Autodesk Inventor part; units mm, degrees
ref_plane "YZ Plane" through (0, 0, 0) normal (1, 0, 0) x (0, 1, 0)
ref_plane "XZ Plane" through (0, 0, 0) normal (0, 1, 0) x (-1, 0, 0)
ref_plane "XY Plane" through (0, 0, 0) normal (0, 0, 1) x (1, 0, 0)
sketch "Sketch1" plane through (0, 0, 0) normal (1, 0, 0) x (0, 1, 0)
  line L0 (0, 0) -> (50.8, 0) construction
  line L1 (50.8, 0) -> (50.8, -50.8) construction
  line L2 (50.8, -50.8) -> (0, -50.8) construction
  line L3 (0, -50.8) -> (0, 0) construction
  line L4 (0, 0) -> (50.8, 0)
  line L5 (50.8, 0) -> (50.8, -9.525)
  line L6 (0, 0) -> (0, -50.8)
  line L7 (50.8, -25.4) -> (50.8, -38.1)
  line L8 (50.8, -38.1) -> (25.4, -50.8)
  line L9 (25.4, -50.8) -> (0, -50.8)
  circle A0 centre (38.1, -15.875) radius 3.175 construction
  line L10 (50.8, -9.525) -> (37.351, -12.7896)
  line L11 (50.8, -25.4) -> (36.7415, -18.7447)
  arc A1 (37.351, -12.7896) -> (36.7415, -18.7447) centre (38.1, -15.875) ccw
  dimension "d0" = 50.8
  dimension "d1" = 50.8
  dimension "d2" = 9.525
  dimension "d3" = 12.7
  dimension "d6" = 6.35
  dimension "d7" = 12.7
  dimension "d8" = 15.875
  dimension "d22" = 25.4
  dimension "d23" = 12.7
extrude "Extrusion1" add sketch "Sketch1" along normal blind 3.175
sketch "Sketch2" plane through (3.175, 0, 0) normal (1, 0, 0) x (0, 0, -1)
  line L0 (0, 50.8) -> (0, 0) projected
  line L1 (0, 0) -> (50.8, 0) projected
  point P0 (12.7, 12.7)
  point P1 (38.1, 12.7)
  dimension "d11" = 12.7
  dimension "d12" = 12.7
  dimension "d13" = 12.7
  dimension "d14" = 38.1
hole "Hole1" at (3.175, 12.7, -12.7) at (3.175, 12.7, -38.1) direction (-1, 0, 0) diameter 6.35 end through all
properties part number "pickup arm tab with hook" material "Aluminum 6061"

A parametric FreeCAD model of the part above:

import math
import FreeCAD as App
import Part
import Sketcher

V = App.Vector
Q = App.Units.Quantity

doc = App.newDocument("Part")
params = doc.addObject("Spreadsheet::Sheet", "Params")
for row, (alias, value) in enumerate([
    ("sketch1_width", "2 in"),
    ("sketch1_width2", "1 in"),
    ("sketch1_height", "0.5 in"),
    ("sketch1_radius", "0.125 in"),
    ("sketch1_height2", "0.375 in"),
    ("pad1_length", "0.125 in"),
    ("sketch2_diameter", "0.25 in"),
    ("hole_diameter", "0.25 in"),
], start=1):
    params.set(f"A{row}", alias)
    params.set(f"B{row}", "=" + value)
    params.setAlias(f"B{row}", alias)

body = doc.addObject("PartDesign::Body", "Body")

# Sketch on YZ plane
sketch1 = body.newObject("Sketcher::SketchObject", "Sketch")
sketch1.AttachmentSupport = (doc.getObject("YZ_Plane"), [""])
sketch1.MapMode = "FlatFace"
sketch1.addGeometry([
    Part.LineSegment(V(50.8, 0, 0), V(0, 0, 0)),  # 0
    Part.LineSegment(V(0, 0, 0), V(0, -50.8, 0)),  # 1
    Part.LineSegment(V(0, -50.8, 0), V(25.4, -50.8, 0)),  # 2
    Part.LineSegment(V(25.4, -50.8, 0), V(50.8, -38.1, 0)),  # 3
    Part.LineSegment(V(50.8, -38.1, 0), V(50.8, -25.4, 0)),  # 4
    Part.LineSegment(V(50.8, -25.4, 0), V(36.7, -18.7, 0)),  # 5
    Part.ArcOfCircle(Part.Circle(V(38.1, -15.9, 0), V(0, 0, 1), 3.2), math.radians(104), math.radians(245)),  # 6
    Part.LineSegment(V(37.4, -12.8, 0), V(50.8, -9.5, 0)),  # 7
    Part.LineSegment(V(50.8, -9.5, 0), V(50.8, 0, 0)),  # 8
], False)
sketch1.addConstraint([
    Sketcher.Constraint("Coincident", 0, 2, 1, 1),
    Sketcher.Constraint("Coincident", 1, 2, 2, 1),
    Sketcher.Constraint("Coincident", 2, 2, 3, 1),
    Sketcher.Constraint("Coincident", 3, 2, 4, 1),
    Sketcher.Constraint("Coincident", 4, 2, 5, 1),
    Sketcher.Constraint("Tangent", 5, 2, 6, 2),
    Sketcher.Constraint("Tangent", 6, 1, 7, 1),
    Sketcher.Constraint("Coincident", 7, 2, 8, 1),
    Sketcher.Constraint("Coincident", 8, 2, 0, 1),
    Sketcher.Constraint("Horizontal", 0),
    Sketcher.Constraint("Vertical", 1),
    Sketcher.Constraint("Horizontal", 2),
    Sketcher.Constraint("Vertical", 4),
    Sketcher.Constraint("Vertical", 8),
    Sketcher.Constraint("Coincident", 0, 2, -1, 1),
    Sketcher.Constraint("Vertical", 4, 2, 7, 2),
    Sketcher.Constraint("Equal", 0, 1),
    Sketcher.Constraint("DistanceX", 0, 2, 0, 1, Q("2 in")),
    Sketcher.Constraint("DistanceX", 2, 1, 2, 2, Q("1 in")),
    Sketcher.Constraint("DistanceY", 4, 1, 4, 2, Q("0.5 in")),
    Sketcher.Constraint("DistanceY", 4, 2, -1, 1, Q("1 in")),
    Sketcher.Constraint("Radius", 6, Q("0.125 in")),
    Sketcher.Constraint("DistanceX", 2, 2, 6, 3, Q("0.5 in")),
    Sketcher.Constraint("DistanceY", 8, 1, 8, 2, Q("0.375 in")),
    Sketcher.Constraint("DistanceY", 6, 3, 7, 2, Q("0.25 in")),
])
sketch1.setExpression("Constraints[17]", "Params.sketch1_width")
sketch1.setExpression("Constraints[18]", "Params.sketch1_width2")
sketch1.setExpression("Constraints[19]", "Params.sketch1_height")
sketch1.setExpression("Constraints[21]", "Params.sketch1_radius")
sketch1.setExpression("Constraints[23]", "Params.sketch1_height2")
pad1 = body.newObject("PartDesign::Pad", "Pad")
pad1.Profile = sketch1
pad1.setExpression("Length", "Params.pad1_length")

# Sketch on YZ plane
sketch2 = body.newObject("Sketcher::SketchObject", "Sketch001")
sketch2.AttachmentSupport = (doc.getObject("YZ_Plane"), [""])
sketch2.MapMode = "FlatFace"
sketch2.AttachmentOffset = App.Placement(V(0, 0, 0.125 * 25.4), App.Rotation())
sketch2.addGeometry([
    Part.Circle(V(12.7, -12.7, 0), V(0, 0, 1), 3.2),
    Part.Circle(V(12.7, -38.1, 0), V(0, 0, 1), 3.2),
], False)
sketch2.addConstraint([
    Sketcher.Constraint("Equal", 0, 1),
    Sketcher.Constraint("Vertical", 0, 3, 1, 3),
    Sketcher.Constraint("Diameter", 0, Q("0.25 in")),
    Sketcher.Constraint("DistanceY", 1, 3, 0, 3, Q("1 in")),
    Sketcher.Constraint("DistanceX", -1, 1, 0, 3, Q("0.5 in")),
    Sketcher.Constraint("DistanceY", 0, 3, -1, 1, Q("0.5 in")),
])
sketch2.setExpression("Constraints[2]", "Params.sketch2_diameter")
doc.recompute()
hole = body.newObject("PartDesign::Hole", "Hole")
hole.Profile = sketch2
hole.ThreadType = "None"
hole.setExpression("Diameter", "Params.hole_diameter")
hole.DepthType = "ThroughAll"

doc.recompute()
